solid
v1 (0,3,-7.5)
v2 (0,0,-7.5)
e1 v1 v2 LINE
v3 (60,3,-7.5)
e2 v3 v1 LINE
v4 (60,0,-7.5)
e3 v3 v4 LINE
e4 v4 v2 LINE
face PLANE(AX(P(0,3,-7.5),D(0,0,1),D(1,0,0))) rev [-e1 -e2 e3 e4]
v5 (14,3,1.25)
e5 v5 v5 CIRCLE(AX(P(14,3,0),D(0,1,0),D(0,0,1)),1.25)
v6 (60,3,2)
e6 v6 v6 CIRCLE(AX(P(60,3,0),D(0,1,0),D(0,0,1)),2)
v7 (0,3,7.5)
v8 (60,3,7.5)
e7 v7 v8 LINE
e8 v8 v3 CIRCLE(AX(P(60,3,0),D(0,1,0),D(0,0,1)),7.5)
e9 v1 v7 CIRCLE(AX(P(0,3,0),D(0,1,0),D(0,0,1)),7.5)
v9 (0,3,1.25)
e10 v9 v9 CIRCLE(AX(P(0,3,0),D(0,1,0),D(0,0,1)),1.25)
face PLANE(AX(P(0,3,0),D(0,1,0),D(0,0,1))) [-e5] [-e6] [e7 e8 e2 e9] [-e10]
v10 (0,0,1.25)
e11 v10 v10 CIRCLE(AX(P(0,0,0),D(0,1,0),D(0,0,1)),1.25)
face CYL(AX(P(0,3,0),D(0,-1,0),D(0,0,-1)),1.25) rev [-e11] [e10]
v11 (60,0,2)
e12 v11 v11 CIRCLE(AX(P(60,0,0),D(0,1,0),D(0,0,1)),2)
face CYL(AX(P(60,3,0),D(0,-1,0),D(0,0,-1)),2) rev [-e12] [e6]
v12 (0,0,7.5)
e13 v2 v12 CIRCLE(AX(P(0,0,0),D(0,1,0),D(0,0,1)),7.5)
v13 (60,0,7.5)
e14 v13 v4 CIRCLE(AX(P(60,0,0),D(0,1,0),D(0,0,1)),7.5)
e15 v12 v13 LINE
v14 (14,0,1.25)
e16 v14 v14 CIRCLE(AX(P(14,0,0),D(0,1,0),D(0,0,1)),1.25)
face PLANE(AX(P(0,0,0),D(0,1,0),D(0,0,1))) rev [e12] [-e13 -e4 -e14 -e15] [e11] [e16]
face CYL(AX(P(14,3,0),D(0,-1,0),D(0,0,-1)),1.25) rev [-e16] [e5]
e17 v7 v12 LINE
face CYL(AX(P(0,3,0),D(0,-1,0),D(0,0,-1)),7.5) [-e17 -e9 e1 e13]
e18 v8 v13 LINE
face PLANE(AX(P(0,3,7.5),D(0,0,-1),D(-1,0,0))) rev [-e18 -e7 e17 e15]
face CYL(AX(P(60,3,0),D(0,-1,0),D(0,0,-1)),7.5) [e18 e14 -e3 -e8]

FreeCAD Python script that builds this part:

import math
import FreeCAD as App
import Part
import Sketcher

V = App.Vector

doc = App.newDocument("Part")
params = doc.addObject("Spreadsheet::Sheet", "Params")
for row, (alias, value) in enumerate([
    ("sketch1_diameter", "4 mm"),
    ("sketch1_diameter2", "2.5 mm"),
    ("sketch1_radius", "7.5 mm"),
    ("sketch1_width", "60 mm"),
    ("pad1_length", "3 mm"),
], start=1):
    params.set(f"A{row}", alias)
    params.set(f"B{row}", "=" + value)
    params.setAlias(f"B{row}", alias)

body = doc.addObject("PartDesign::Body", "Body")

# Sketch on XZ plane
sketch1 = body.newObject("Sketcher::SketchObject", "Sketch")
sketch1.AttachmentSupport = (doc.getObject("XZ_Plane"), [""])
sketch1.MapMode = "FlatFace"
sketch1.addGeometry([
    Part.LineSegment(V(60, -7.5, 0), V(0, -7.5, 0)),  # 0
    Part.ArcOfCircle(Part.Circle(V(0, 0, 0), V(0, 0, 1), 7.5), math.radians(90), math.radians(270)),  # 1
    Part.LineSegment(V(0, 7.5, 0), V(60, 7.5, 0)),  # 2
    Part.ArcOfCircle(Part.Circle(V(60, 0, 0), V(0, 0, 1), 7.5), math.radians(-90), math.radians(90)),  # 3
    Part.Circle(V(60, 0, 0), V(0, 0, 1), 2),  # 4
    Part.Circle(V(14, 0, 0), V(0, 0, 1), 1.25),  # 5
    Part.Circle(V(0, 0, 0), V(0, 0, 1), 1.25),  # 6
], False)
sketch1.addConstraint([
    Sketcher.Constraint("Tangent", 0, 2, 1, 2),
    Sketcher.Constraint("Tangent", 1, 1, 2, 1),
    Sketcher.Constraint("Tangent", 2, 2, 3, 2),
    Sketcher.Constraint("Tangent", 3, 1, 0, 1),
    Sketcher.Constraint("Horizontal", 0),
    Sketcher.Constraint("Horizontal", 2),
    Sketcher.Constraint("Coincident", 1, 3, -1, 1),
    Sketcher.Constraint("Coincident", 6, 3, -1, 1),
    Sketcher.Constraint("Coincident", 4, 3, 3, 3),
    Sketcher.Constraint("Equal", 5, 6),
    Sketcher.Constraint("PointOnObject", 5, 3, -1),
    Sketcher.Constraint("Diameter", 4, 4.0),
    Sketcher.Constraint("Diameter", 5, 2.5),
    Sketcher.Constraint("Radius", 1, 7.5),
    Sketcher.Constraint("DistanceX", 0, 2, 0, 1, 60.0),
    Sketcher.Constraint("DistanceX", -1, 1, 5, 3, 14.0),
])
sketch1.setExpression("Constraints[11]", "Params.sketch1_diameter")
sketch1.setExpression("Constraints[12]", "Params.sketch1_diameter2")
sketch1.setExpression("Constraints[13]", "Params.sketch1_radius")
sketch1.setExpression("Constraints[14]", "Params.sketch1_width")
pad1 = body.newObject("PartDesign::Pad", "Pad")
pad1.Profile = sketch1
pad1.setExpression("Length", "Params.pad1_length")
pad1.Reversed = True

doc.recompute()
